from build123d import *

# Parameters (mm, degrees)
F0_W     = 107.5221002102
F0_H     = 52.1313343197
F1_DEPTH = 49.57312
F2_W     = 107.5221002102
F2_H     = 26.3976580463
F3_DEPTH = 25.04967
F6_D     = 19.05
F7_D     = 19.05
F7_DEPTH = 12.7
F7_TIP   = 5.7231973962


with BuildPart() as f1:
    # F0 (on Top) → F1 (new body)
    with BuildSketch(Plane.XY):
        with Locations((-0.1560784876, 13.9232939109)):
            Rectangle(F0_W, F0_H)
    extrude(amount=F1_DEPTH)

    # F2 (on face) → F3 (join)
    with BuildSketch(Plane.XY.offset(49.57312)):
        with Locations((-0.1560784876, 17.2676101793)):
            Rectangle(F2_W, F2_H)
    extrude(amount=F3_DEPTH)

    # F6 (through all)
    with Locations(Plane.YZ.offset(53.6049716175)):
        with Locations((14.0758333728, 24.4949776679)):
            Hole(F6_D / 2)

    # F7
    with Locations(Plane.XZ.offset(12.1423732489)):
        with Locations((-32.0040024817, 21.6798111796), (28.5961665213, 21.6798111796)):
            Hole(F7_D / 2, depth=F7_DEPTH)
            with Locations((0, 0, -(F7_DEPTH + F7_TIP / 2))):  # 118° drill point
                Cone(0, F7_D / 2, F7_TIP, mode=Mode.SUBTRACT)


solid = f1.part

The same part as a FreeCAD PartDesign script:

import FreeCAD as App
import Part
import Sketcher
from FreeCAD import Vector
Q = App.Units.Quantity

doc = App.newDocument("Part")
params = doc.addObject("Spreadsheet::Sheet", "Params")
for row, (alias, value) in enumerate([
    ("pad1_length", "49.57312 mm"),
    ("pad2_length", "25.04967 mm"),
    ("sketch3_diameter", "0.75 in"),
    ("hole_diameter", "0.75 in"),
    ("sketch4_diameter", "0.75 in"),
    ("hole2_diameter", "0.75 in"),
    ("hole2_depth", "0.5 in"),
], start=1):
    params.set(f"A{row}", alias)
    params.set(f"B{row}", "=" + value)
    params.setAlias(f"B{row}", alias)

body = doc.addObject("PartDesign::Body", "Body")

# Sketch on XY plane
sketch1 = body.newObject("Sketcher::SketchObject", "Sketch")
sketch1.AttachmentSupport = (doc.getObject("XY_Plane"), [""])
sketch1.MapMode = "FlatFace"
sketch1.addGeometry([
    Part.LineSegment(Vector(-54, 40, 0), Vector(-54, -12, 0)),
    Part.LineSegment(Vector(-54, -12, 0), Vector(54, -12, 0)),
    Part.LineSegment(Vector(54, -12, 0), Vector(54, 40, 0)),
    Part.LineSegment(Vector(54, 40, 0), Vector(-54, 40, 0)),
], False)
sketch1.addConstraint([
    Sketcher.Constraint("Coincident", 0, 2, 1, 1),
    Sketcher.Constraint("Coincident", 1, 2, 2, 1),
    Sketcher.Constraint("Coincident", 2, 2, 3, 1),
    Sketcher.Constraint("Coincident", 3, 2, 0, 1),
    Sketcher.Constraint("Vertical", 0),
    Sketcher.Constraint("Horizontal", 1),
    Sketcher.Constraint("Vertical", 2),
    Sketcher.Constraint("Horizontal", 3),
    Sketcher.Constraint("DistanceX", 1, 1, 1, 2, 107.5221),
    Sketcher.Constraint("DistanceY", 0, 2, 0, 1, 52.131334),
    Sketcher.Constraint("DistanceX", 0, 2, -1, 1, 53.917129),
    Sketcher.Constraint("DistanceY", -1, 1, 2, 2, 39.988961),
])
pad1 = body.newObject("PartDesign::Pad", "Pad")
pad1.Profile = sketch1
pad1.setExpression("Length", "Params.pad1_length")

# Sketch on XY plane
sketch2 = body.newObject("Sketcher::SketchObject", "Sketch001")
sketch2.AttachmentSupport = (doc.getObject("XY_Plane"), [""])
sketch2.MapMode = "FlatFace"
sketch2.AttachmentOffset = App.Placement(Vector(0, 0, 49.57312), App.Rotation())
sketch2.addGeometry([
    Part.LineSegment(Vector(-54, 30, 0), Vector(-54, 4, 0)),
    Part.LineSegment(Vector(-54, 4, 0), Vector(54, 4, 0)),
    Part.LineSegment(Vector(54, 4, 0), Vector(54, 30, 0)),
    Part.LineSegment(Vector(54, 30, 0), Vector(-54, 30, 0)),
], False)
sketch2.addConstraint([
    Sketcher.Constraint("Coincident", 0, 2, 1, 1),
    Sketcher.Constraint("Coincident", 1, 2, 2, 1),
    Sketcher.Constraint("Coincident", 2, 2, 3, 1),
    Sketcher.Constraint("Coincident", 3, 2, 0, 1),
    Sketcher.Constraint("Vertical", 0),
    Sketcher.Constraint("Horizontal", 1),
    Sketcher.Constraint("Vertical", 2),
    Sketcher.Constraint("Horizontal", 3),
    Sketcher.Constraint("DistanceX", 1, 1, 1, 2, 107.5221),
    Sketcher.Constraint("DistanceY", 0, 2, 0, 1, 26.397658),
    Sketcher.Constraint("DistanceX", 0, 2, -1, 1, 53.917129),
    Sketcher.Constraint("DistanceY", -1, 1, 0, 2, 4.068781),
])
pad2 = body.newObject("PartDesign::Pad", "Pad001")
pad2.Profile = sketch2
pad2.setExpression("Length", "Params.pad2_length")

# Sketch on YZ plane
sketch3 = body.newObject("Sketcher::SketchObject", "Sketch002")
sketch3.AttachmentSupport = (doc.getObject("YZ_Plane"), [""])
sketch3.MapMode = "FlatFace"
sketch3.AttachmentOffset = App.Placement(Vector(0, 0, 53.604972), App.Rotation())
sketch3.addGeometry(Part.Circle(Vector(14, 24, 0), Vector(0, 0, 1), 10), False)
sketch3.addConstraint([
    Sketcher.Constraint("Diameter", 0, Q("0.75 in")),
    Sketcher.Constraint("DistanceX", -1, 1, 0, 3, 14.075833),
    Sketcher.Constraint("DistanceY", -1, 1, 0, 3, 24.494978),
])
sketch3.setExpression("Constraints[0]", "Params.sketch3_diameter")
doc.recompute()
hole = body.newObject("PartDesign::Hole", "Hole")
hole.Profile = sketch3
hole.ThreadType = "None"
hole.setExpression("Diameter", "Params.hole_diameter")
hole.DepthType = "ThroughAll"

# Sketch on XZ plane
sketch4 = body.newObject("Sketcher::SketchObject", "Sketch003")
sketch4.AttachmentSupport = (doc.getObject("XZ_Plane"), [""])
sketch4.MapMode = "FlatFace"
sketch4.AttachmentOffset = App.Placement(Vector(0, 0, 12.142373), App.Rotation())
sketch4.addGeometry([
    Part.Circle(Vector(-32, 22, 0), Vector(0, 0, 1), 10),
    Part.Circle(Vector(29, 22, 0), Vector(0, 0, 1), 10),
], False)
sketch4.addConstraint([
    Sketcher.Constraint("Equal", 0, 1),
    Sketcher.Constraint("Horizontal", 0, 3, 1, 3),
    Sketcher.Constraint("Diameter", 0, Q("0.75 in")),
    Sketcher.Constraint("DistanceX", 0, 3, -1, 1, Q("1.2600001 in")),
    Sketcher.Constraint("DistanceY", -1, 1, 0, 3, 21.679811),
    Sketcher.Constraint("DistanceX", 0, 3, 1, 3, 60.600169),
])
sketch4.setExpression("Constraints[2]", "Params.sketch4_diameter")
doc.recompute()
hole2 = body.newObject("PartDesign::Hole", "Hole001")
hole2.Profile = sketch4
hole2.ThreadType = "None"
hole2.setExpression("Diameter", "Params.hole2_diameter")
hole2.DepthType = "Dimension"
hole2.setExpression("Depth", "Params.hole2_depth")
hole2.DrillPoint = "Angled"
hole2.DrillPointAngle = 118

doc.recompute()
